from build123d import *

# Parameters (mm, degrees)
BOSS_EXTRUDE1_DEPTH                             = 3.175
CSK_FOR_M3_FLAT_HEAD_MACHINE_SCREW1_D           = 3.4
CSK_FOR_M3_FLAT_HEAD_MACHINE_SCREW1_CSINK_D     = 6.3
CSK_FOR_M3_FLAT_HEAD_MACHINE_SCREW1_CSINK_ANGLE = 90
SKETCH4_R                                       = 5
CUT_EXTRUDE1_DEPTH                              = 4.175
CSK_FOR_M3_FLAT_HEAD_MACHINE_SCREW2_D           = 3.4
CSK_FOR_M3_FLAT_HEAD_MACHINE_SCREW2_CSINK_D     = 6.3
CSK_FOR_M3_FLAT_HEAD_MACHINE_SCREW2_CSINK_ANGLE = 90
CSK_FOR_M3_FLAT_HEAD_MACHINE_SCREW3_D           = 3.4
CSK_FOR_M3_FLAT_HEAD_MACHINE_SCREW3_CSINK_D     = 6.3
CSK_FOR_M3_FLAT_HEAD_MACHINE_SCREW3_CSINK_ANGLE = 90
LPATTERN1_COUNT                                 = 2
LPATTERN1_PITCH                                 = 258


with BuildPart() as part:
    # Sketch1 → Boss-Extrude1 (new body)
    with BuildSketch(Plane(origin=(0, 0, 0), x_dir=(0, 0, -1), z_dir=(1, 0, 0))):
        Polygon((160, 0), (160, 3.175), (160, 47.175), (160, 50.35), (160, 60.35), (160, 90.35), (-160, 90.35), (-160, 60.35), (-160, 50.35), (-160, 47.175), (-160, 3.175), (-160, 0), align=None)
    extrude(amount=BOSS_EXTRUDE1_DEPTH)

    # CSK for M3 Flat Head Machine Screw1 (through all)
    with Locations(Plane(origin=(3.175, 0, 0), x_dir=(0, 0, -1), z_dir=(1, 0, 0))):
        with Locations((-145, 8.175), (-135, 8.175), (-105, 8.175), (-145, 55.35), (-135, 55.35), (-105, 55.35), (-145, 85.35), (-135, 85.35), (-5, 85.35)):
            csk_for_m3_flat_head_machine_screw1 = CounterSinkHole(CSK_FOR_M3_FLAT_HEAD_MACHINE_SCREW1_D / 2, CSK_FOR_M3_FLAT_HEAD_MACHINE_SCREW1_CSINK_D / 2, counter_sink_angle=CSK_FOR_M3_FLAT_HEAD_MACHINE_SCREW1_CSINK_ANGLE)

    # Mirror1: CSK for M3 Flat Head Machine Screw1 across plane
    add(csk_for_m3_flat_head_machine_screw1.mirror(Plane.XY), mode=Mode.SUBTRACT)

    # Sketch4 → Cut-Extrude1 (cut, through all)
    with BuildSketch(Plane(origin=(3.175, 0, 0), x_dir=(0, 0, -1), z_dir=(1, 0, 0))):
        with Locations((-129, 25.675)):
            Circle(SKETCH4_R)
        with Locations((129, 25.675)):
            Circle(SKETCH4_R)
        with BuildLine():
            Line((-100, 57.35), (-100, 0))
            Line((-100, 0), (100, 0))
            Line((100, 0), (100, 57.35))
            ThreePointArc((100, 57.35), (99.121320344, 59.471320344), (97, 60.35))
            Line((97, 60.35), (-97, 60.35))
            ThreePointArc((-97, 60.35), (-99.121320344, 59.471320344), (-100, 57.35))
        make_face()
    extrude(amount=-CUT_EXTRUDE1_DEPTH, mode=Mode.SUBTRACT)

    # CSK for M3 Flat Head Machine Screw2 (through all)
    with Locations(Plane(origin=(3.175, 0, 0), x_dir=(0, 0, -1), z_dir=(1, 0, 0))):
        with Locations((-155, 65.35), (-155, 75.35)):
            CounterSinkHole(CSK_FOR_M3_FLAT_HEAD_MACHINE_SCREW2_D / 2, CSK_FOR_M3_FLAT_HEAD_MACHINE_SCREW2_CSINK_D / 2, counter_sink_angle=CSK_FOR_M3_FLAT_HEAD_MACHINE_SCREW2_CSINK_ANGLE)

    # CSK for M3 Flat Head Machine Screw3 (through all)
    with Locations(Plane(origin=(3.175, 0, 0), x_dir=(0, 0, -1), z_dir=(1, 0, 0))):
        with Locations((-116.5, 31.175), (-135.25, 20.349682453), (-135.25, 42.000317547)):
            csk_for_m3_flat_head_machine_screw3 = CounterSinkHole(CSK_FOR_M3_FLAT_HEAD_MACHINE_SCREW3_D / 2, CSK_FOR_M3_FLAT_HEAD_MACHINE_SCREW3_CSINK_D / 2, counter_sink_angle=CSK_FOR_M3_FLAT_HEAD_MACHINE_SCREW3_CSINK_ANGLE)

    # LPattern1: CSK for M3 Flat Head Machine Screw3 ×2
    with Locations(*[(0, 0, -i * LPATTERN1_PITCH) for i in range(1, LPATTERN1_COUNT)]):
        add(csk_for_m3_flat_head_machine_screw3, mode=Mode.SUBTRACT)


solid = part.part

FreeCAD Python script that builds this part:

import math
import FreeCAD as App
import Part
import Sketcher

doc = App.newDocument("Part")
body = doc.addObject("PartDesign::Body", "Body")

sketch1 = body.newObject("Sketcher::SketchObject", "Sketch")
sketch1.AttachmentSupport = (doc.getObject("YZ_Plane"), [""])
sketch1.MapMode = "FlatFace"
sketch1.addGeometry(Part.LineSegment(App.Vector(0, -160, 0), App.Vector(90, -160, 0)), False)
sketch1.addGeometry(Part.LineSegment(App.Vector(90, -160, 0), App.Vector(90, 160, 0)), False)
sketch1.addGeometry(Part.LineSegment(App.Vector(90, 160, 0), App.Vector(0, 160, 0)), False)
sketch1.addGeometry(Part.LineSegment(App.Vector(0, 160, 0), App.Vector(0, -160, 0)), False)
sketch1.addConstraint(Sketcher.Constraint("Coincident", 0, 2, 1, 1))
sketch1.addConstraint(Sketcher.Constraint("Coincident", 1, 2, 2, 1))
sketch1.addConstraint(Sketcher.Constraint("Coincident", 2, 2, 3, 1))
sketch1.addConstraint(Sketcher.Constraint("Coincident", 3, 2, 0, 1))
sketch1.addConstraint(Sketcher.Constraint("Horizontal", 0))
sketch1.addConstraint(Sketcher.Constraint("Vertical", 1))
sketch1.addConstraint(Sketcher.Constraint("Horizontal", 2))
sketch1.addConstraint(Sketcher.Constraint("Vertical", 3))
sketch1.addConstraint(Sketcher.Constraint("Symmetric", 2, 2, 3, 2, -1, 1))
sketch1.addConstraint(Sketcher.Constraint("DistanceY", 1, 1, 1, 2, 320.0))
sketch1.addConstraint(Sketcher.Constraint("DistanceX", 0, 1, 0, 2, 90.35))
pad1 = body.newObject("PartDesign::Pad", "Pad")
pad1.Profile = sketch1
pad1.Length = 3.175

sketch2 = body.newObject("Sketcher::SketchObject", "Sketch001")
sketch2.AttachmentSupport = (doc.getObject("YZ_Plane"), [""])
sketch2.MapMode = "FlatFace"
sketch2.AttachmentOffset = App.Placement(App.Vector(0, 0, 3.175), App.Rotation())
sketch2.addGeometry(Part.Circle(App.Vector(8.2, 145, 0), App.Vector(0, 0, 1), 1.7), False)
sketch2.addGeometry(Part.Circle(App.Vector(8.2, 135, 0), App.Vector(0, 0, 1), 1.7), False)
sketch2.addGeometry(Part.Circle(App.Vector(8.2, 105, 0), App.Vector(0, 0, 1), 1.7), False)
sketch2.addGeometry(Part.Circle(App.Vector(55.4, 145, 0), App.Vector(0, 0, 1), 1.7), False)
sketch2.addGeometry(Part.Circle(App.Vector(55.4, 135, 0), App.Vector(0, 0, 1), 1.7), False)
sketch2.addGeometry(Part.Circle(App.Vector(55.4, 105, 0), App.Vector(0, 0, 1), 1.7), False)
sketch2.addGeometry(Part.Circle(App.Vector(85.3, 145, 0), App.Vector(0, 0, 1), 1.7), False)
sketch2.addGeometry(Part.Circle(App.Vector(85.3, 135, 0), App.Vector(0, 0, 1), 1.7), False)
sketch2.addGeometry(Part.Circle(App.Vector(85.3, 5, 0), App.Vector(0, 0, 1), 1.7), False)
sketch2.addConstraint(Sketcher.Constraint("Equal", 0, 1))
sketch2.addConstraint(Sketcher.Constraint("Equal", 1, 2))
sketch2.addConstraint(Sketcher.Constraint("Equal", 2, 3))
sketch2.addConstraint(Sketcher.Constraint("Equal", 3, 4))
sketch2.addConstraint(Sketcher.Constraint("Equal", 4, 5))
sketch2.addConstraint(Sketcher.Constraint("Equal", 5, 6))
sketch2.addConstraint(Sketcher.Constraint("Equal", 6, 7))
sketch2.addConstraint(Sketcher.Constraint("Equal", 7, 8))
sketch2.addConstraint(Sketcher.Constraint("Horizontal", 0, 3, 3, 3))
sketch2.addConstraint(Sketcher.Constraint("Horizontal", 1, 3, 4, 3))
sketch2.addConstraint(Sketcher.Constraint("Horizontal", 2, 3, 5, 3))
sketch2.addConstraint(Sketcher.Constraint("Horizontal", 3, 3, 6, 3))
sketch2.addConstraint(Sketcher.Constraint("Horizontal", 4, 3, 7, 3))
sketch2.addConstraint(Sketcher.Constraint("Vertical", 0, 3, 1, 3))
sketch2.addConstraint(Sketcher.Constraint("Vertical", 1, 3, 2, 3))
sketch2.addConstraint(Sketcher.Constraint("Vertical", 3, 3, 4, 3))
sketch2.addConstraint(Sketcher.Constraint("Vertical", 4, 3, 5, 3))
sketch2.addConstraint(Sketcher.Constraint("Vertical", 6, 3, 7, 3))
sketch2.addConstraint(Sketcher.Constraint("Vertical", 7, 3, 8, 3))
sketch2.addConstraint(Sketcher.Constraint("Diameter", 0, 3.4))
sketch2.addConstraint(Sketcher.Constraint("DistanceY", -1, 1, 0, 3, 145.0))
sketch2.addConstraint(Sketcher.Constraint("DistanceY", -1, 1, 1, 3, 135.0))
sketch2.addConstraint(Sketcher.Constraint("DistanceY", -1, 1, 2, 3, 105.0))
sketch2.addConstraint(Sketcher.Constraint("DistanceY", -1, 1, 8, 3, 5.0))
sketch2.addConstraint(Sketcher.Constraint("DistanceX", 3, 3, 6, 3, 30.0))
sketch2.addConstraint(Sketcher.Constraint("DistanceX", -1, 1, 3, 3, 55.35))
sketch2.addConstraint(Sketcher.Constraint("DistanceX", -1, 1, 0, 3, 8.175))
doc.recompute()
hole = body.newObject("PartDesign::Hole", "Hole")
hole.Profile = sketch2
hole.ThreadType = "None"
hole.Diameter = 3.4
hole.DepthType = "ThroughAll"
hole.HoleCutType = "Countersink"
hole.HoleCutDiameter = 6.3
hole.HoleCutCountersinkAngle = 90
doc.recompute()

mirrored = body.newObject("PartDesign::Mirrored", "Mirrored")
mirrored.Originals = [hole]
mirrored.MirrorPlane = (doc.getObject("XY_Plane"), [""])
body.Tip = mirrored

sketch3 = body.newObject("Sketcher::SketchObject", "Sketch002")
sketch3.AttachmentSupport = (doc.getObject("YZ_Plane"), [""])
sketch3.MapMode = "FlatFace"
sketch3.AttachmentOffset = App.Placement(App.Vector(0, 0, 3.175), App.Rotation())
sketch3.addGeometry(Part.Circle(App.Vector(25.7, 129, 0), App.Vector(0, 0, 1), 5), False)
sketch3.addGeometry(Part.Circle(App.Vector(25.7, -129, 0), App.Vector(0, 0, 1), 5), False)
sketch3.addGeometry(Part.LineSegment(App.Vector(57.4, 100, 0), App.Vector(0, 100, 0)), False)
sketch3.addGeometry(Part.LineSegment(App.Vector(0, 100, 0), App.Vector(0, -100, 0)), False)
sketch3.addGeometry(Part.LineSegment(App.Vector(0, -100, 0), App.Vector(57.4, -100, 0)), False)
sketch3.addGeometry(Part.ArcOfCircle(Part.Circle(App.Vector(57.4, -97, 0), App.Vector(0, 0, 1), 3), math.radians(-90), math.radians(0)), False)
sketch3.addGeometry(Part.LineSegment(App.Vector(60.4, -97, 0), App.Vector(60.4, 97, 0)), False)
sketch3.addGeometry(Part.ArcOfCircle(Part.Circle(App.Vector(57.4, 97, 0), App.Vector(0, 0, 1), 3), math.radians(0), math.radians(90)), False)
sketch3.addConstraint(Sketcher.Constraint("Coincident", 2, 2, 3, 1))
sketch3.addConstraint(Sketcher.Constraint("Coincident", 3, 2, 4, 1))
sketch3.addConstraint(Sketcher.Constraint("Tangent", 4, 2, 5, 1))
sketch3.addConstraint(Sketcher.Constraint("Tangent", 5, 2, 6, 1))
sketch3.addConstraint(Sketcher.Constraint("Tangent", 6, 2, 7, 1))
sketch3.addConstraint(Sketcher.Constraint("Tangent", 7, 2, 2, 1))
sketch3.addConstraint(Sketcher.Constraint("Horizontal", 2))
sketch3.addConstraint(Sketcher.Constraint("Vertical", 3))
sketch3.addConstraint(Sketcher.Constraint("Horizontal", 4))
sketch3.addConstraint(Sketcher.Constraint("Vertical", 6))
sketch3.addConstraint(Sketcher.Constraint("Equal", 0, 1))
sketch3.addConstraint(Sketcher.Constraint("Equal", 5, 7))
sketch3.addConstraint(Sketcher.Constraint("Symmetric", 2, 2, 3, 2, -1, 1))
sketch3.addConstraint(Sketcher.Constraint("Symmetric", 0, 3, 1, 3, -1))
sketch3.addConstraint(Sketcher.Constraint("Diameter", 0, 10.0))
sketch3.addConstraint(Sketcher.Constraint("Radius", 5, 3.0))
sketch3.addConstraint(Sketcher.Constraint("DistanceY", 3, 2, 3, 1, 200.0))
sketch3.addConstraint(Sketcher.Constraint("DistanceY", -1, 1, 0, 3, 129.0))
sketch3.addConstraint(Sketcher.Constraint("DistanceX", 2, 2, 2, 1, 57.35))
sketch3.addConstraint(Sketcher.Constraint("DistanceX", -1, 1, 0, 3, 25.675))
pocket1 = body.newObject("PartDesign::Pocket", "Pocket")
pocket1.Profile = sketch3
pocket1.Type = "ThroughAll"

sketch4 = body.newObject("Sketcher::SketchObject", "Sketch003")
sketch4.AttachmentSupport = (doc.getObject("YZ_Plane"), [""])
sketch4.MapMode = "FlatFace"
sketch4.AttachmentOffset = App.Placement(App.Vector(0, 0, 3.175), App.Rotation())
sketch4.addGeometry(Part.Circle(App.Vector(65.3, 155, 0), App.Vector(0, 0, 1), 1.7), False)
sketch4.addGeometry(Part.Circle(App.Vector(75.3, 155, 0), App.Vector(0, 0, 1), 1.7), False)
sketch4.addConstraint(Sketcher.Constraint("Equal", 0, 1))
sketch4.addConstraint(Sketcher.Constraint("Horizontal", 0, 3, 1, 3))
sketch4.addConstraint(Sketcher.Constraint("Diameter", 0, 3.4))
sketch4.addConstraint(Sketcher.Constraint("DistanceY", -1, 1, 0, 3, 155.0))
sketch4.addConstraint(Sketcher.Constraint("DistanceX", 0, 3, 1, 3, 10.0))
sketch4.addConstraint(Sketcher.Constraint("DistanceX", -1, 1, 0, 3, 65.35))
doc.recompute()
hole2 = body.newObject("PartDesign::Hole", "Hole001")
hole2.Profile = sketch4
hole2.ThreadType = "None"
hole2.Diameter = 3.4
hole2.DepthType = "ThroughAll"
hole2.HoleCutType = "Countersink"
hole2.HoleCutDiameter = 6.3
hole2.HoleCutCountersinkAngle = 90

sketch5 = body.newObject("Sketcher::SketchObject", "Sketch004")
sketch5.AttachmentSupport = (doc.getObject("YZ_Plane"), [""])
sketch5.MapMode = "FlatFace"
sketch5.AttachmentOffset = App.Placement(App.Vector(0, 0, 3.175), App.Rotation())
sketch5.addGeometry(Part.Circle(App.Vector(31.2, 116.5, 0), App.Vector(0, 0, 1), 1.7), False)
sketch5.addGeometry(Part.Circle(App.Vector(20.3, 135.2, 0), App.Vector(0, 0, 1), 1.7), False)
sketch5.addGeometry(Part.Circle(App.Vector(42, 135.2, 0), App.Vector(0, 0, 1), 1.7), False)
sketch5.addConstraint(Sketcher.Constraint("Equal", 0, 1))
sketch5.addConstraint(Sketcher.Constraint("Equal", 1, 2))
sketch5.addConstraint(Sketcher.Constraint("Horizontal", 1, 3, 2, 3))
sketch5.addConstraint(Sketcher.Constraint("Diameter", 0, 3.4))
sketch5.addConstraint(Sketcher.Constraint("DistanceY", -1, 1, 0, 3, 116.5))
sketch5.addConstraint(Sketcher.Constraint("DistanceY", -1, 1, 1, 3, 135.25))
sketch5.addConstraint(Sketcher.Constraint("DistanceX", -1, 1, 0, 3, 31.175))
sketch5.addConstraint(Sketcher.Constraint("DistanceX", -1, 1, 1, 3, 20.349682))
sketch5.addConstraint(Sketcher.Constraint("DistanceX", -1, 1, 2, 3, 42.000318))
doc.recompute()
hole3 = body.newObject("PartDesign::Hole", "Hole002")
hole3.Profile = sketch5
hole3.ThreadType = "None"
hole3.Diameter = 3.4
hole3.DepthType = "ThroughAll"
hole3.HoleCutType = "Countersink"
hole3.HoleCutDiameter = 6.3
hole3.HoleCutCountersinkAngle = 90
doc.recompute()

linearpattern = body.newObject("PartDesign::LinearPattern", "LinearPattern")
linearpattern.Originals = [hole3]
linearpattern.Direction = (doc.getObject("Z_Axis"), [""])
linearpattern.Mode = "offset"
linearpattern.Offset = 258
linearpattern.Occurrences = 2
linearpattern.Reversed = True
body.Tip = linearpattern

doc.recompute()
